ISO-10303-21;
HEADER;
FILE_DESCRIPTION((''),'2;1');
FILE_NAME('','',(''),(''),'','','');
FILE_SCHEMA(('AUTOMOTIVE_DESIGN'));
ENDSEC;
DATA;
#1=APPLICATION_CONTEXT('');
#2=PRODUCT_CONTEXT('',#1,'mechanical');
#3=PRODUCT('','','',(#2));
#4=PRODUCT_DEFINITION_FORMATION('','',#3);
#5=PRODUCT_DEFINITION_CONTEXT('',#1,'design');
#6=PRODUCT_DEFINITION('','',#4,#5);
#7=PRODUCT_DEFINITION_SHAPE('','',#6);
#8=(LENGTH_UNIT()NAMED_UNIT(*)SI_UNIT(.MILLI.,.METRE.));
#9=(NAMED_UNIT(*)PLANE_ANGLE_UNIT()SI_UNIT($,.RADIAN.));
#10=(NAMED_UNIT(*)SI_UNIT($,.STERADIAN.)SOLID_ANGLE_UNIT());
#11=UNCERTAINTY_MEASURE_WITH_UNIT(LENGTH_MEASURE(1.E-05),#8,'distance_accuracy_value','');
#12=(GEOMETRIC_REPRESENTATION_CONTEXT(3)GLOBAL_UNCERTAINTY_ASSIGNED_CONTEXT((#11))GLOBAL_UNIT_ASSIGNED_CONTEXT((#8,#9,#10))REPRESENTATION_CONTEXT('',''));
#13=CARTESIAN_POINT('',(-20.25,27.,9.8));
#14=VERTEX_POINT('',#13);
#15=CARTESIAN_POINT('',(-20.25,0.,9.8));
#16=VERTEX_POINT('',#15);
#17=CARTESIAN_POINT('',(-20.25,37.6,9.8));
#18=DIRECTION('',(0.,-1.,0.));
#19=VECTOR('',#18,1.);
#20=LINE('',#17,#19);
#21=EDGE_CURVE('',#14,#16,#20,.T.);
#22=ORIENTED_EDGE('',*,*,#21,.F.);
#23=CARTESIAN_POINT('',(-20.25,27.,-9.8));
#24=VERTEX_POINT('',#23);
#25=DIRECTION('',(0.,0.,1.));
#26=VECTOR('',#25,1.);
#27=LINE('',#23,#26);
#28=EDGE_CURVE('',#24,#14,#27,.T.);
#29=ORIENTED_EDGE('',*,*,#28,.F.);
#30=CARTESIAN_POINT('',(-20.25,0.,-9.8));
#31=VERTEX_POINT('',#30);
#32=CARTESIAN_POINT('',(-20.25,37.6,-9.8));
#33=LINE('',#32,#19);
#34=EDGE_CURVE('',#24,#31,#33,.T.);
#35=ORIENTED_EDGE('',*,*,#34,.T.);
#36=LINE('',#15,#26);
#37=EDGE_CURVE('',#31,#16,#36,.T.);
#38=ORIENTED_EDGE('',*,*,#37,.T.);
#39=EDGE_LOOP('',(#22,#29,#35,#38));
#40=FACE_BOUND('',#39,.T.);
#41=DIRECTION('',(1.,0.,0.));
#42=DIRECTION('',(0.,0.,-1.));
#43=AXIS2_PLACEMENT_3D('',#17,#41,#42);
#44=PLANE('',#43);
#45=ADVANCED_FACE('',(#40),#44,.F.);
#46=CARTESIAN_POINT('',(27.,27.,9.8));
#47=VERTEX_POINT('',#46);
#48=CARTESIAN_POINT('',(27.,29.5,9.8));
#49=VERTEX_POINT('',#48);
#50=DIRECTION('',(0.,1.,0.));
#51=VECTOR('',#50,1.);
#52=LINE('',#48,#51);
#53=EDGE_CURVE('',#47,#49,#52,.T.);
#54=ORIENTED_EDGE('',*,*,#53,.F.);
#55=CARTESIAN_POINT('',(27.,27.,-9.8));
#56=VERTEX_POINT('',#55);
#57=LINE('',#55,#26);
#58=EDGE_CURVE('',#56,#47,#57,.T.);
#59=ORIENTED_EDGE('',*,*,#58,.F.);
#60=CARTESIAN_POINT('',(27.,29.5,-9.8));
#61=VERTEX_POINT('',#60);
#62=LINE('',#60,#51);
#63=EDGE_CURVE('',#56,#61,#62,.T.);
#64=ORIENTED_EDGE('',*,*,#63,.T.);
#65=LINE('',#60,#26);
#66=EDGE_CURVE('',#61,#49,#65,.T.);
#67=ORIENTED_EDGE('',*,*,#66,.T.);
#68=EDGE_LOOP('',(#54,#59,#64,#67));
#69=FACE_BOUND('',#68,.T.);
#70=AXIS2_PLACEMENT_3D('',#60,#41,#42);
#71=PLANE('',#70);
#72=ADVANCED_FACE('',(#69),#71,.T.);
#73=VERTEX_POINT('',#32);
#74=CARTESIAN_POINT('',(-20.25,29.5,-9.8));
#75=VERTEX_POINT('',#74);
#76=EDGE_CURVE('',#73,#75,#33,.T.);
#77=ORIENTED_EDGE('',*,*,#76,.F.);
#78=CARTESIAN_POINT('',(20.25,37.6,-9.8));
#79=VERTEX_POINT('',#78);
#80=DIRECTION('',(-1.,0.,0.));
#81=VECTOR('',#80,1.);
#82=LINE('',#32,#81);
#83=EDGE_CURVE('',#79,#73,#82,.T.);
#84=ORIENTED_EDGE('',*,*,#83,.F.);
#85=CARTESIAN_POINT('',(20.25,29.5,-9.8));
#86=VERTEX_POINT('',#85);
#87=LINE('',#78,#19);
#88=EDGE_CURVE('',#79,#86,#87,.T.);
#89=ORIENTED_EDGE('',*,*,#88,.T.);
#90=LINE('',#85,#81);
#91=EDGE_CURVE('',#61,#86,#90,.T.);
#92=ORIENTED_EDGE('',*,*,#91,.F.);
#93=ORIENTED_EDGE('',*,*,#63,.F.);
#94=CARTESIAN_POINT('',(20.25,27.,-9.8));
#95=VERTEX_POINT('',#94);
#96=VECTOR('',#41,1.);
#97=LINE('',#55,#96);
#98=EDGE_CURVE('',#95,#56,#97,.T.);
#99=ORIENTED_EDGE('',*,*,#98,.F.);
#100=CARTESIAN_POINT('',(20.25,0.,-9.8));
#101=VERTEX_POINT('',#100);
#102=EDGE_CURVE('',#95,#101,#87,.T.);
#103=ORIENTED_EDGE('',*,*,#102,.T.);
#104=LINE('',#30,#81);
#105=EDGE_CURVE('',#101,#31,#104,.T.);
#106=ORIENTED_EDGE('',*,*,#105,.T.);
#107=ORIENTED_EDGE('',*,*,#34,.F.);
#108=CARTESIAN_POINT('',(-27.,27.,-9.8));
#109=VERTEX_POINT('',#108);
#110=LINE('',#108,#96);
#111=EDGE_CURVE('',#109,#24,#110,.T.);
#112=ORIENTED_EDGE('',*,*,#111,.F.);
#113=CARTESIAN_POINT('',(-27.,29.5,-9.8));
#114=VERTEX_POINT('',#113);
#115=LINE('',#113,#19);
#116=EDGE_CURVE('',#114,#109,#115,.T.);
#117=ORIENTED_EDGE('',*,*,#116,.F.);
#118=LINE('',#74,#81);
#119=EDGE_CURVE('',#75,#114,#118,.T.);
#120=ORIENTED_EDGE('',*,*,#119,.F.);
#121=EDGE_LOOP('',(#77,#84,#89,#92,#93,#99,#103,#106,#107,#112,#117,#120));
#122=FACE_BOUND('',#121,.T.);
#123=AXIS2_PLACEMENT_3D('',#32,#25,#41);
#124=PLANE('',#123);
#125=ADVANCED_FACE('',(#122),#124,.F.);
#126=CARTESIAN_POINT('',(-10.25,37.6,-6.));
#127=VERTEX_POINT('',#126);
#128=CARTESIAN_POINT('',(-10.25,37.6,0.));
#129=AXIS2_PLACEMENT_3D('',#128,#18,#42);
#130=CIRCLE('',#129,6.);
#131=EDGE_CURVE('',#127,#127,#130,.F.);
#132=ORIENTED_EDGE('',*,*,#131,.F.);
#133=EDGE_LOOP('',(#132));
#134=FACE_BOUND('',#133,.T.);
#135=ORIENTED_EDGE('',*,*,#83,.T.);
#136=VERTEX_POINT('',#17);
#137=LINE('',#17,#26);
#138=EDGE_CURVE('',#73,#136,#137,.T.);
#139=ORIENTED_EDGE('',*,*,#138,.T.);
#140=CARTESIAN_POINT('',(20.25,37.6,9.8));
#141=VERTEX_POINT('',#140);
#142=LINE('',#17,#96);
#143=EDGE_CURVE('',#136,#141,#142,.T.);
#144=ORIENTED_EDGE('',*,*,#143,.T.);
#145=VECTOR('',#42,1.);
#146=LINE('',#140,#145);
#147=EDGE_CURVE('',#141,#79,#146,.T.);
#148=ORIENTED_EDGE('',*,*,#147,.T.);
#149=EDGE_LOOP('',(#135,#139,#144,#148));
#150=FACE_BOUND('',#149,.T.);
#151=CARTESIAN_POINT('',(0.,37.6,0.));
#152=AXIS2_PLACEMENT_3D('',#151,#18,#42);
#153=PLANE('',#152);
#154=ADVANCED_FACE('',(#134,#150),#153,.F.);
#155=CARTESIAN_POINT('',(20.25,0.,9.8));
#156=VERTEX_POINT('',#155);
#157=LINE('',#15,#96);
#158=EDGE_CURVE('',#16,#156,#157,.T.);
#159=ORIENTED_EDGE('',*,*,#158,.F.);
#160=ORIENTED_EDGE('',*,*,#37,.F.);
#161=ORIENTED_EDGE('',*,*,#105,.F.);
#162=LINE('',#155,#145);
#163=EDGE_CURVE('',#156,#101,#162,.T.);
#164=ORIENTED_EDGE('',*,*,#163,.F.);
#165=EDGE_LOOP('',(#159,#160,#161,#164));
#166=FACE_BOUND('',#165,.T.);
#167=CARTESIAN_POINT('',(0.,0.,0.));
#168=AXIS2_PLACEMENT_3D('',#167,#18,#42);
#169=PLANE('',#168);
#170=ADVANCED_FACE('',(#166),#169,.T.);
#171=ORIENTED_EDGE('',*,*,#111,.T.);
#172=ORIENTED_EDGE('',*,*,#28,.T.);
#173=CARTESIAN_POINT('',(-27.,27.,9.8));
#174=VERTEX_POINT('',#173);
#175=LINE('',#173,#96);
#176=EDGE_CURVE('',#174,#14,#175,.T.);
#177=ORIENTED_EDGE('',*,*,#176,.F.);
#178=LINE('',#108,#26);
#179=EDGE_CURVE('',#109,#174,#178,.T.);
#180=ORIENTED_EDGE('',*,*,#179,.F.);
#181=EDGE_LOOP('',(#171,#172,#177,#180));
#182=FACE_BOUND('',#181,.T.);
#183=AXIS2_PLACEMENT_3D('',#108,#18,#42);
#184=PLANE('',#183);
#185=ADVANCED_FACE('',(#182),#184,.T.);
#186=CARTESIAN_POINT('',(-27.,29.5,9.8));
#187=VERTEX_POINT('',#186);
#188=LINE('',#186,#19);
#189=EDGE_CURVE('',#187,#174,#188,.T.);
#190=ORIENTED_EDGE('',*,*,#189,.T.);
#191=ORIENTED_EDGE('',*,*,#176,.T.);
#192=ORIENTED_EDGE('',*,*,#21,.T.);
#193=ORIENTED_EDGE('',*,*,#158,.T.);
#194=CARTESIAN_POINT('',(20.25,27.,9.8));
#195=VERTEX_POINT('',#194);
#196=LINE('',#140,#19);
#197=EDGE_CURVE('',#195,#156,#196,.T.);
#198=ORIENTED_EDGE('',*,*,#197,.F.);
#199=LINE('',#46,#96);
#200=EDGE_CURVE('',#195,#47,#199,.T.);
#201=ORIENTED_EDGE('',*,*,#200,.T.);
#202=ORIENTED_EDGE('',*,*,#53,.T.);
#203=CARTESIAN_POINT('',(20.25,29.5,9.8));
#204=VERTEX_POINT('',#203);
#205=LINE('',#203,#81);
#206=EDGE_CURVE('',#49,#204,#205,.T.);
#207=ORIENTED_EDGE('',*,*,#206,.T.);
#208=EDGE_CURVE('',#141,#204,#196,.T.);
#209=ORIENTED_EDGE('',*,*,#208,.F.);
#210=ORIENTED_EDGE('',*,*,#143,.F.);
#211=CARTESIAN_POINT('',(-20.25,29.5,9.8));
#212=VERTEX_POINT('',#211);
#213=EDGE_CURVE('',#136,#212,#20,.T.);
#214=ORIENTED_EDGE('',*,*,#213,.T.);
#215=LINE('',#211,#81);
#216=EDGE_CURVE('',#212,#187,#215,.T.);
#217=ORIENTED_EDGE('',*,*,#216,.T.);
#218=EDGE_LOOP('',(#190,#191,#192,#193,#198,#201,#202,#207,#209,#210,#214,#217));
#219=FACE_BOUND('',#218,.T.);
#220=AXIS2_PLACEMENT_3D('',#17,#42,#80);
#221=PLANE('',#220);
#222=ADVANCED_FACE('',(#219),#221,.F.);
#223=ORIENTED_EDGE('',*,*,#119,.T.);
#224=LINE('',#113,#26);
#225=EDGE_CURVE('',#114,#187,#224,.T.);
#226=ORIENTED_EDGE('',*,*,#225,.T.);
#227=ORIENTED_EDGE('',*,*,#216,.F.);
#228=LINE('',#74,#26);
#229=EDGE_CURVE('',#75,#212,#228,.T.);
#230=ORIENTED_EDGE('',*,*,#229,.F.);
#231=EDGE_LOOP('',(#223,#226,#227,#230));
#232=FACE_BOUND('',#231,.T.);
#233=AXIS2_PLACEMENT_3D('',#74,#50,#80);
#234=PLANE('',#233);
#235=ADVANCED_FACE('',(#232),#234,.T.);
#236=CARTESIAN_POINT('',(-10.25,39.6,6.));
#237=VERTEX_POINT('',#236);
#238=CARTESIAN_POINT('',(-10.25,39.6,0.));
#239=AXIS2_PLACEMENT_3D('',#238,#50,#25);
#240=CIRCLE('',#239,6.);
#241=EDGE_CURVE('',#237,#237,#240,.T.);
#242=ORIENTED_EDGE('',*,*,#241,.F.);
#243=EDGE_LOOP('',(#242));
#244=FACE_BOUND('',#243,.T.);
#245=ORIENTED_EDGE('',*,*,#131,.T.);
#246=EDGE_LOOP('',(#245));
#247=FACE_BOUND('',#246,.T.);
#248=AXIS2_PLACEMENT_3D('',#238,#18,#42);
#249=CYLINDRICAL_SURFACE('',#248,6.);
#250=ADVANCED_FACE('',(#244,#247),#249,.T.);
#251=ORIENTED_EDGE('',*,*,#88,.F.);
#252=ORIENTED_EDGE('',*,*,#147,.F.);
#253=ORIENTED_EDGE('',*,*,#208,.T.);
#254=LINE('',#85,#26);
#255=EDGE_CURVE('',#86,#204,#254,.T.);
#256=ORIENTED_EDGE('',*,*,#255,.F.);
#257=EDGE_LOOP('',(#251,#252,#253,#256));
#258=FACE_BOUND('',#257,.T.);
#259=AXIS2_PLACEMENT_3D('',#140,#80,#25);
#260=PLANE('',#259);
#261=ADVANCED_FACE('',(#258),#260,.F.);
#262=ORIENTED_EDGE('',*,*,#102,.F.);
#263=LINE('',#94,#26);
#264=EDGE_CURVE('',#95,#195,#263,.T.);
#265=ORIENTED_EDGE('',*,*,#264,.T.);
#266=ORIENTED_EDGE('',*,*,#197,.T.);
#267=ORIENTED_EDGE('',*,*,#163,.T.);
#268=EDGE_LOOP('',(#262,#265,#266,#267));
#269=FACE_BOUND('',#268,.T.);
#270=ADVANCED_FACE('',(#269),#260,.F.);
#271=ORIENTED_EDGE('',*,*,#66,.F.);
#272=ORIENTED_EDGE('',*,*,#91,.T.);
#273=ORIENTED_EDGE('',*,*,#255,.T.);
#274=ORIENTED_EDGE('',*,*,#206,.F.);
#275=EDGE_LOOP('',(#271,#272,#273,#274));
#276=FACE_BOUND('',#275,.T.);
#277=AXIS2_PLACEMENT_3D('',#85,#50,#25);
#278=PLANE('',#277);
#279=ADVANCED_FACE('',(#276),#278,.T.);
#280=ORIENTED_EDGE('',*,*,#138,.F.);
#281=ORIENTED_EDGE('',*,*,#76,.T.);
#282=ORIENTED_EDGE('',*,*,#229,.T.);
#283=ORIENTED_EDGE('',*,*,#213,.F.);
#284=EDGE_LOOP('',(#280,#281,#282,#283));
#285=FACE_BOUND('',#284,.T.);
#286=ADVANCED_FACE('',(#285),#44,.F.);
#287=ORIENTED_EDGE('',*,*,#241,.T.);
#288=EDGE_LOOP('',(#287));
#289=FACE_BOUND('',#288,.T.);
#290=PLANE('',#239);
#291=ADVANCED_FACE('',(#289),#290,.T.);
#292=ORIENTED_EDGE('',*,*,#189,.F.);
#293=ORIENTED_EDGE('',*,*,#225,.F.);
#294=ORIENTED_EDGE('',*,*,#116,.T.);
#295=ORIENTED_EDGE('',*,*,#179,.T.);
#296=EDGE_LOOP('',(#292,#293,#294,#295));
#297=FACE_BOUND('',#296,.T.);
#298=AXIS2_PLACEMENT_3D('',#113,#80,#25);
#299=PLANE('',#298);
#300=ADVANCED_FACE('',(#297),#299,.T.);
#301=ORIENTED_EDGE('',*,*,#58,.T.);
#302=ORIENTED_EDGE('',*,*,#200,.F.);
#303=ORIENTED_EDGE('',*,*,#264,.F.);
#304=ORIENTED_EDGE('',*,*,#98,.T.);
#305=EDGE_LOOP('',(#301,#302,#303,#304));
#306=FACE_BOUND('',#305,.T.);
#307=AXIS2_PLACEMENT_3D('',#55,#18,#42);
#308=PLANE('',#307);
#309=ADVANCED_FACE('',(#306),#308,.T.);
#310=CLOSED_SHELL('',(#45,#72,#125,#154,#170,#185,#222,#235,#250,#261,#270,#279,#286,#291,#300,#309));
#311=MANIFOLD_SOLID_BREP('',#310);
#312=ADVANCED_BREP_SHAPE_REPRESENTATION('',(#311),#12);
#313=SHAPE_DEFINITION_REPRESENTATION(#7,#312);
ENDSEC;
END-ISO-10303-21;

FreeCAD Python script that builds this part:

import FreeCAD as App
import Part
import Sketcher
Q = App.Units.Quantity

doc = App.newDocument("Part")
params = doc.addObject("Spreadsheet::Sheet", "Params")
for row, (alias, value) in enumerate([
    ("sketch1_width", "40.5 mm"),
    ("sketch1_height", "19.6 mm"),
    ("pad1_length", "37.6 mm"),
    ("sketch2_diameter", "12 mm"),
    ("pad2_length", "2 mm"),
    ("sketch3_height", "2.5 mm"),
    ("sketch3_width", "6.75 mm"),
    ("pad3_length", "19.6 mm"),
], start=1):
    params.set(f"A{row}", alias)
    params.set(f"B{row}", "=" + value)
    params.setAlias(f"B{row}", alias)

body = doc.addObject("PartDesign::Body", "Body")

# Sketch on XZ plane
sketch1 = doc.addObject("Sketcher::SketchObject", "Sketch")
body.addObject(sketch1)
sketch1.AttachmentSupport = (doc.XZ_Plane, [""])
sketch1.MapMode = "FlatFace"
sketch1.addGeometry(Part.LineSegment(App.Vector(-20.25, -9.8, 0), App.Vector(-20.25, 9.8, 0)), False)
sketch1.addGeometry(Part.LineSegment(App.Vector(-20.25, 9.8, 0), App.Vector(20.25, 9.8, 0)), False)
sketch1.addGeometry(Part.LineSegment(App.Vector(20.25, 9.8, 0), App.Vector(20.25, -9.8, 0)), False)
sketch1.addGeometry(Part.LineSegment(App.Vector(20.25, -9.8, 0), App.Vector(-20.25, -9.8, 0)), False)
sketch1.addConstraint(Sketcher.Constraint("Coincident", 0, 2, 1, 1))
sketch1.addConstraint(Sketcher.Constraint("Coincident", 1, 2, 2, 1))
sketch1.addConstraint(Sketcher.Constraint("Coincident", 2, 2, 3, 1))
sketch1.addConstraint(Sketcher.Constraint("Coincident", 3, 2, 0, 1))
sketch1.addConstraint(Sketcher.Constraint("Vertical", 0))
sketch1.addConstraint(Sketcher.Constraint("Horizontal", 1))
sketch1.addConstraint(Sketcher.Constraint("Vertical", 2))
sketch1.addConstraint(Sketcher.Constraint("Horizontal", 3))
sketch1.addConstraint(Sketcher.Constraint("Symmetric", 0, 2, 2, 2, -1, 1))
sketch1.addConstraint(Sketcher.Constraint("DistanceX", 1, 1, 1, 2, Q("40.5 mm")))
sketch1.addConstraint(Sketcher.Constraint("DistanceY", 0, 1, 0, 2, Q("19.6 mm")))
sketch1.setExpression("Constraints[9]", "Params.sketch1_width")
sketch1.setExpression("Constraints[10]", "Params.sketch1_height")
pad1 = doc.addObject("PartDesign::Pad", "Pad")
body.addObject(pad1)
pad1.Profile = sketch1
pad1.setExpression("Length", "Params.pad1_length")
pad1.Reversed = True

# Sketch on XZ plane
sketch2 = doc.addObject("Sketcher::SketchObject", "Sketch001")
body.addObject(sketch2)
sketch2.AttachmentSupport = (doc.XZ_Plane, [""])
sketch2.MapMode = "FlatFace"
sketch2.AttachmentOffset = App.Placement(App.Vector(0, 0, -37.6), App.Rotation())
sketch2.addGeometry(Part.Circle(App.Vector(-10.25, 0, 0), App.Vector(0, 0, 1), 6), False)
sketch2.addConstraint(Sketcher.Constraint("PointOnObject", 0, 3, -1))
sketch2.addConstraint(Sketcher.Constraint("Diameter", 0, Q("12 mm")))
sketch2.addConstraint(Sketcher.Constraint("DistanceX", 0, 3, -1, 1, Q("10.25 mm")))
sketch2.setExpression("Constraints[1]", "Params.sketch2_diameter")
pad2 = doc.addObject("PartDesign::Pad", "Pad001")
body.addObject(pad2)
pad2.Profile = sketch2
pad2.setExpression("Length", "Params.pad2_length")
pad2.Reversed = True

# Sketch on XY plane
sketch3 = doc.addObject("Sketcher::SketchObject", "Sketch002")
body.addObject(sketch3)
sketch3.AttachmentSupport = (doc.XY_Plane, [""])
sketch3.MapMode = "FlatFace"
sketch3.AttachmentOffset = App.Placement(App.Vector(0, 0, 9.8), App.Rotation())
sketch3.addGeometry(Part.LineSegment(App.Vector(-27, 29.5, 0), App.Vector(-27, 27, 0)), False)
sketch3.addGeometry(Part.LineSegment(App.Vector(-27, 27, 0), App.Vector(-20.25, 27, 0)), False)
sketch3.addGeometry(Part.LineSegment(App.Vector(-20.25, 27, 0), App.Vector(-20.25, 29.5, 0)), False)
sketch3.addGeometry(Part.LineSegment(App.Vector(-20.25, 29.5, 0), App.Vector(-27, 29.5, 0)), False)
sketch3.addGeometry(Part.LineSegment(App.Vector(20.25, 29.5, 0), App.Vector(20.25, 27, 0)), False)
sketch3.addGeometry(Part.LineSegment(App.Vector(20.25, 27, 0), App.Vector(27, 27, 0)), False)
sketch3.addGeometry(Part.LineSegment(App.Vector(27, 27, 0), App.Vector(27, 29.5, 0)), False)
sketch3.addGeometry(Part.LineSegment(App.Vector(27, 29.5, 0), App.Vector(20.25, 29.5, 0)), False)
sketch3.addConstraint(Sketcher.Constraint("Coincident", 0, 2, 1, 1))
sketch3.addConstraint(Sketcher.Constraint("Coincident", 1, 2, 2, 1))
sketch3.addConstraint(Sketcher.Constraint("Coincident", 2, 2, 3, 1))
sketch3.addConstraint(Sketcher.Constraint("Coincident", 3, 2, 0, 1))
sketch3.addConstraint(Sketcher.Constraint("Coincident", 4, 2, 5, 1))
sketch3.addConstraint(Sketcher.Constraint("Coincident", 5, 2, 6, 1))
sketch3.addConstraint(Sketcher.Constraint("Coincident", 6, 2, 7, 1))
sketch3.addConstraint(Sketcher.Constraint("Coincident", 7, 2, 4, 1))
sketch3.addConstraint(Sketcher.Constraint("Vertical", 0))
sketch3.addConstraint(Sketcher.Constraint("Horizontal", 1))
sketch3.addConstraint(Sketcher.Constraint("Vertical", 2))
sketch3.addConstraint(Sketcher.Constraint("Horizontal", 3))
sketch3.addConstraint(Sketcher.Constraint("Vertical", 4))
sketch3.addConstraint(Sketcher.Constraint("Horizontal", 5))
sketch3.addConstraint(Sketcher.Constraint("Vertical", 6))
sketch3.addConstraint(Sketcher.Constraint("Horizontal", 7))
sketch3.addConstraint(Sketcher.Constraint("Symmetric", 1, 2, 4, 2, -2))
sketch3.addConstraint(Sketcher.Constraint("Symmetric", 3, 2, 6, 2, -2))
sketch3.addConstraint(Sketcher.Constraint("DistanceY", 0, 2, 0, 1, Q("2.5 mm")))
sketch3.addConstraint(Sketcher.Constraint("DistanceX", 0, 2, -1, 1, Q("27 mm")))
sketch3.addConstraint(Sketcher.Constraint("DistanceY", -1, 1, 0, 2, Q("27 mm")))
sketch3.addConstraint(Sketcher.Constraint("DistanceX", 1, 1, 1, 2, Q("6.75 mm")))
sketch3.setExpression("Constraints[18]", "Params.sketch3_height")
sketch3.setExpression("Constraints[21]", "Params.sketch3_width")
pad3 = doc.addObject("PartDesign::Pad", "Pad002")
body.addObject(pad3)
pad3.Profile = sketch3
pad3.setExpression("Length", "Params.pad3_length")
pad3.Reversed = True

doc.recompute()
